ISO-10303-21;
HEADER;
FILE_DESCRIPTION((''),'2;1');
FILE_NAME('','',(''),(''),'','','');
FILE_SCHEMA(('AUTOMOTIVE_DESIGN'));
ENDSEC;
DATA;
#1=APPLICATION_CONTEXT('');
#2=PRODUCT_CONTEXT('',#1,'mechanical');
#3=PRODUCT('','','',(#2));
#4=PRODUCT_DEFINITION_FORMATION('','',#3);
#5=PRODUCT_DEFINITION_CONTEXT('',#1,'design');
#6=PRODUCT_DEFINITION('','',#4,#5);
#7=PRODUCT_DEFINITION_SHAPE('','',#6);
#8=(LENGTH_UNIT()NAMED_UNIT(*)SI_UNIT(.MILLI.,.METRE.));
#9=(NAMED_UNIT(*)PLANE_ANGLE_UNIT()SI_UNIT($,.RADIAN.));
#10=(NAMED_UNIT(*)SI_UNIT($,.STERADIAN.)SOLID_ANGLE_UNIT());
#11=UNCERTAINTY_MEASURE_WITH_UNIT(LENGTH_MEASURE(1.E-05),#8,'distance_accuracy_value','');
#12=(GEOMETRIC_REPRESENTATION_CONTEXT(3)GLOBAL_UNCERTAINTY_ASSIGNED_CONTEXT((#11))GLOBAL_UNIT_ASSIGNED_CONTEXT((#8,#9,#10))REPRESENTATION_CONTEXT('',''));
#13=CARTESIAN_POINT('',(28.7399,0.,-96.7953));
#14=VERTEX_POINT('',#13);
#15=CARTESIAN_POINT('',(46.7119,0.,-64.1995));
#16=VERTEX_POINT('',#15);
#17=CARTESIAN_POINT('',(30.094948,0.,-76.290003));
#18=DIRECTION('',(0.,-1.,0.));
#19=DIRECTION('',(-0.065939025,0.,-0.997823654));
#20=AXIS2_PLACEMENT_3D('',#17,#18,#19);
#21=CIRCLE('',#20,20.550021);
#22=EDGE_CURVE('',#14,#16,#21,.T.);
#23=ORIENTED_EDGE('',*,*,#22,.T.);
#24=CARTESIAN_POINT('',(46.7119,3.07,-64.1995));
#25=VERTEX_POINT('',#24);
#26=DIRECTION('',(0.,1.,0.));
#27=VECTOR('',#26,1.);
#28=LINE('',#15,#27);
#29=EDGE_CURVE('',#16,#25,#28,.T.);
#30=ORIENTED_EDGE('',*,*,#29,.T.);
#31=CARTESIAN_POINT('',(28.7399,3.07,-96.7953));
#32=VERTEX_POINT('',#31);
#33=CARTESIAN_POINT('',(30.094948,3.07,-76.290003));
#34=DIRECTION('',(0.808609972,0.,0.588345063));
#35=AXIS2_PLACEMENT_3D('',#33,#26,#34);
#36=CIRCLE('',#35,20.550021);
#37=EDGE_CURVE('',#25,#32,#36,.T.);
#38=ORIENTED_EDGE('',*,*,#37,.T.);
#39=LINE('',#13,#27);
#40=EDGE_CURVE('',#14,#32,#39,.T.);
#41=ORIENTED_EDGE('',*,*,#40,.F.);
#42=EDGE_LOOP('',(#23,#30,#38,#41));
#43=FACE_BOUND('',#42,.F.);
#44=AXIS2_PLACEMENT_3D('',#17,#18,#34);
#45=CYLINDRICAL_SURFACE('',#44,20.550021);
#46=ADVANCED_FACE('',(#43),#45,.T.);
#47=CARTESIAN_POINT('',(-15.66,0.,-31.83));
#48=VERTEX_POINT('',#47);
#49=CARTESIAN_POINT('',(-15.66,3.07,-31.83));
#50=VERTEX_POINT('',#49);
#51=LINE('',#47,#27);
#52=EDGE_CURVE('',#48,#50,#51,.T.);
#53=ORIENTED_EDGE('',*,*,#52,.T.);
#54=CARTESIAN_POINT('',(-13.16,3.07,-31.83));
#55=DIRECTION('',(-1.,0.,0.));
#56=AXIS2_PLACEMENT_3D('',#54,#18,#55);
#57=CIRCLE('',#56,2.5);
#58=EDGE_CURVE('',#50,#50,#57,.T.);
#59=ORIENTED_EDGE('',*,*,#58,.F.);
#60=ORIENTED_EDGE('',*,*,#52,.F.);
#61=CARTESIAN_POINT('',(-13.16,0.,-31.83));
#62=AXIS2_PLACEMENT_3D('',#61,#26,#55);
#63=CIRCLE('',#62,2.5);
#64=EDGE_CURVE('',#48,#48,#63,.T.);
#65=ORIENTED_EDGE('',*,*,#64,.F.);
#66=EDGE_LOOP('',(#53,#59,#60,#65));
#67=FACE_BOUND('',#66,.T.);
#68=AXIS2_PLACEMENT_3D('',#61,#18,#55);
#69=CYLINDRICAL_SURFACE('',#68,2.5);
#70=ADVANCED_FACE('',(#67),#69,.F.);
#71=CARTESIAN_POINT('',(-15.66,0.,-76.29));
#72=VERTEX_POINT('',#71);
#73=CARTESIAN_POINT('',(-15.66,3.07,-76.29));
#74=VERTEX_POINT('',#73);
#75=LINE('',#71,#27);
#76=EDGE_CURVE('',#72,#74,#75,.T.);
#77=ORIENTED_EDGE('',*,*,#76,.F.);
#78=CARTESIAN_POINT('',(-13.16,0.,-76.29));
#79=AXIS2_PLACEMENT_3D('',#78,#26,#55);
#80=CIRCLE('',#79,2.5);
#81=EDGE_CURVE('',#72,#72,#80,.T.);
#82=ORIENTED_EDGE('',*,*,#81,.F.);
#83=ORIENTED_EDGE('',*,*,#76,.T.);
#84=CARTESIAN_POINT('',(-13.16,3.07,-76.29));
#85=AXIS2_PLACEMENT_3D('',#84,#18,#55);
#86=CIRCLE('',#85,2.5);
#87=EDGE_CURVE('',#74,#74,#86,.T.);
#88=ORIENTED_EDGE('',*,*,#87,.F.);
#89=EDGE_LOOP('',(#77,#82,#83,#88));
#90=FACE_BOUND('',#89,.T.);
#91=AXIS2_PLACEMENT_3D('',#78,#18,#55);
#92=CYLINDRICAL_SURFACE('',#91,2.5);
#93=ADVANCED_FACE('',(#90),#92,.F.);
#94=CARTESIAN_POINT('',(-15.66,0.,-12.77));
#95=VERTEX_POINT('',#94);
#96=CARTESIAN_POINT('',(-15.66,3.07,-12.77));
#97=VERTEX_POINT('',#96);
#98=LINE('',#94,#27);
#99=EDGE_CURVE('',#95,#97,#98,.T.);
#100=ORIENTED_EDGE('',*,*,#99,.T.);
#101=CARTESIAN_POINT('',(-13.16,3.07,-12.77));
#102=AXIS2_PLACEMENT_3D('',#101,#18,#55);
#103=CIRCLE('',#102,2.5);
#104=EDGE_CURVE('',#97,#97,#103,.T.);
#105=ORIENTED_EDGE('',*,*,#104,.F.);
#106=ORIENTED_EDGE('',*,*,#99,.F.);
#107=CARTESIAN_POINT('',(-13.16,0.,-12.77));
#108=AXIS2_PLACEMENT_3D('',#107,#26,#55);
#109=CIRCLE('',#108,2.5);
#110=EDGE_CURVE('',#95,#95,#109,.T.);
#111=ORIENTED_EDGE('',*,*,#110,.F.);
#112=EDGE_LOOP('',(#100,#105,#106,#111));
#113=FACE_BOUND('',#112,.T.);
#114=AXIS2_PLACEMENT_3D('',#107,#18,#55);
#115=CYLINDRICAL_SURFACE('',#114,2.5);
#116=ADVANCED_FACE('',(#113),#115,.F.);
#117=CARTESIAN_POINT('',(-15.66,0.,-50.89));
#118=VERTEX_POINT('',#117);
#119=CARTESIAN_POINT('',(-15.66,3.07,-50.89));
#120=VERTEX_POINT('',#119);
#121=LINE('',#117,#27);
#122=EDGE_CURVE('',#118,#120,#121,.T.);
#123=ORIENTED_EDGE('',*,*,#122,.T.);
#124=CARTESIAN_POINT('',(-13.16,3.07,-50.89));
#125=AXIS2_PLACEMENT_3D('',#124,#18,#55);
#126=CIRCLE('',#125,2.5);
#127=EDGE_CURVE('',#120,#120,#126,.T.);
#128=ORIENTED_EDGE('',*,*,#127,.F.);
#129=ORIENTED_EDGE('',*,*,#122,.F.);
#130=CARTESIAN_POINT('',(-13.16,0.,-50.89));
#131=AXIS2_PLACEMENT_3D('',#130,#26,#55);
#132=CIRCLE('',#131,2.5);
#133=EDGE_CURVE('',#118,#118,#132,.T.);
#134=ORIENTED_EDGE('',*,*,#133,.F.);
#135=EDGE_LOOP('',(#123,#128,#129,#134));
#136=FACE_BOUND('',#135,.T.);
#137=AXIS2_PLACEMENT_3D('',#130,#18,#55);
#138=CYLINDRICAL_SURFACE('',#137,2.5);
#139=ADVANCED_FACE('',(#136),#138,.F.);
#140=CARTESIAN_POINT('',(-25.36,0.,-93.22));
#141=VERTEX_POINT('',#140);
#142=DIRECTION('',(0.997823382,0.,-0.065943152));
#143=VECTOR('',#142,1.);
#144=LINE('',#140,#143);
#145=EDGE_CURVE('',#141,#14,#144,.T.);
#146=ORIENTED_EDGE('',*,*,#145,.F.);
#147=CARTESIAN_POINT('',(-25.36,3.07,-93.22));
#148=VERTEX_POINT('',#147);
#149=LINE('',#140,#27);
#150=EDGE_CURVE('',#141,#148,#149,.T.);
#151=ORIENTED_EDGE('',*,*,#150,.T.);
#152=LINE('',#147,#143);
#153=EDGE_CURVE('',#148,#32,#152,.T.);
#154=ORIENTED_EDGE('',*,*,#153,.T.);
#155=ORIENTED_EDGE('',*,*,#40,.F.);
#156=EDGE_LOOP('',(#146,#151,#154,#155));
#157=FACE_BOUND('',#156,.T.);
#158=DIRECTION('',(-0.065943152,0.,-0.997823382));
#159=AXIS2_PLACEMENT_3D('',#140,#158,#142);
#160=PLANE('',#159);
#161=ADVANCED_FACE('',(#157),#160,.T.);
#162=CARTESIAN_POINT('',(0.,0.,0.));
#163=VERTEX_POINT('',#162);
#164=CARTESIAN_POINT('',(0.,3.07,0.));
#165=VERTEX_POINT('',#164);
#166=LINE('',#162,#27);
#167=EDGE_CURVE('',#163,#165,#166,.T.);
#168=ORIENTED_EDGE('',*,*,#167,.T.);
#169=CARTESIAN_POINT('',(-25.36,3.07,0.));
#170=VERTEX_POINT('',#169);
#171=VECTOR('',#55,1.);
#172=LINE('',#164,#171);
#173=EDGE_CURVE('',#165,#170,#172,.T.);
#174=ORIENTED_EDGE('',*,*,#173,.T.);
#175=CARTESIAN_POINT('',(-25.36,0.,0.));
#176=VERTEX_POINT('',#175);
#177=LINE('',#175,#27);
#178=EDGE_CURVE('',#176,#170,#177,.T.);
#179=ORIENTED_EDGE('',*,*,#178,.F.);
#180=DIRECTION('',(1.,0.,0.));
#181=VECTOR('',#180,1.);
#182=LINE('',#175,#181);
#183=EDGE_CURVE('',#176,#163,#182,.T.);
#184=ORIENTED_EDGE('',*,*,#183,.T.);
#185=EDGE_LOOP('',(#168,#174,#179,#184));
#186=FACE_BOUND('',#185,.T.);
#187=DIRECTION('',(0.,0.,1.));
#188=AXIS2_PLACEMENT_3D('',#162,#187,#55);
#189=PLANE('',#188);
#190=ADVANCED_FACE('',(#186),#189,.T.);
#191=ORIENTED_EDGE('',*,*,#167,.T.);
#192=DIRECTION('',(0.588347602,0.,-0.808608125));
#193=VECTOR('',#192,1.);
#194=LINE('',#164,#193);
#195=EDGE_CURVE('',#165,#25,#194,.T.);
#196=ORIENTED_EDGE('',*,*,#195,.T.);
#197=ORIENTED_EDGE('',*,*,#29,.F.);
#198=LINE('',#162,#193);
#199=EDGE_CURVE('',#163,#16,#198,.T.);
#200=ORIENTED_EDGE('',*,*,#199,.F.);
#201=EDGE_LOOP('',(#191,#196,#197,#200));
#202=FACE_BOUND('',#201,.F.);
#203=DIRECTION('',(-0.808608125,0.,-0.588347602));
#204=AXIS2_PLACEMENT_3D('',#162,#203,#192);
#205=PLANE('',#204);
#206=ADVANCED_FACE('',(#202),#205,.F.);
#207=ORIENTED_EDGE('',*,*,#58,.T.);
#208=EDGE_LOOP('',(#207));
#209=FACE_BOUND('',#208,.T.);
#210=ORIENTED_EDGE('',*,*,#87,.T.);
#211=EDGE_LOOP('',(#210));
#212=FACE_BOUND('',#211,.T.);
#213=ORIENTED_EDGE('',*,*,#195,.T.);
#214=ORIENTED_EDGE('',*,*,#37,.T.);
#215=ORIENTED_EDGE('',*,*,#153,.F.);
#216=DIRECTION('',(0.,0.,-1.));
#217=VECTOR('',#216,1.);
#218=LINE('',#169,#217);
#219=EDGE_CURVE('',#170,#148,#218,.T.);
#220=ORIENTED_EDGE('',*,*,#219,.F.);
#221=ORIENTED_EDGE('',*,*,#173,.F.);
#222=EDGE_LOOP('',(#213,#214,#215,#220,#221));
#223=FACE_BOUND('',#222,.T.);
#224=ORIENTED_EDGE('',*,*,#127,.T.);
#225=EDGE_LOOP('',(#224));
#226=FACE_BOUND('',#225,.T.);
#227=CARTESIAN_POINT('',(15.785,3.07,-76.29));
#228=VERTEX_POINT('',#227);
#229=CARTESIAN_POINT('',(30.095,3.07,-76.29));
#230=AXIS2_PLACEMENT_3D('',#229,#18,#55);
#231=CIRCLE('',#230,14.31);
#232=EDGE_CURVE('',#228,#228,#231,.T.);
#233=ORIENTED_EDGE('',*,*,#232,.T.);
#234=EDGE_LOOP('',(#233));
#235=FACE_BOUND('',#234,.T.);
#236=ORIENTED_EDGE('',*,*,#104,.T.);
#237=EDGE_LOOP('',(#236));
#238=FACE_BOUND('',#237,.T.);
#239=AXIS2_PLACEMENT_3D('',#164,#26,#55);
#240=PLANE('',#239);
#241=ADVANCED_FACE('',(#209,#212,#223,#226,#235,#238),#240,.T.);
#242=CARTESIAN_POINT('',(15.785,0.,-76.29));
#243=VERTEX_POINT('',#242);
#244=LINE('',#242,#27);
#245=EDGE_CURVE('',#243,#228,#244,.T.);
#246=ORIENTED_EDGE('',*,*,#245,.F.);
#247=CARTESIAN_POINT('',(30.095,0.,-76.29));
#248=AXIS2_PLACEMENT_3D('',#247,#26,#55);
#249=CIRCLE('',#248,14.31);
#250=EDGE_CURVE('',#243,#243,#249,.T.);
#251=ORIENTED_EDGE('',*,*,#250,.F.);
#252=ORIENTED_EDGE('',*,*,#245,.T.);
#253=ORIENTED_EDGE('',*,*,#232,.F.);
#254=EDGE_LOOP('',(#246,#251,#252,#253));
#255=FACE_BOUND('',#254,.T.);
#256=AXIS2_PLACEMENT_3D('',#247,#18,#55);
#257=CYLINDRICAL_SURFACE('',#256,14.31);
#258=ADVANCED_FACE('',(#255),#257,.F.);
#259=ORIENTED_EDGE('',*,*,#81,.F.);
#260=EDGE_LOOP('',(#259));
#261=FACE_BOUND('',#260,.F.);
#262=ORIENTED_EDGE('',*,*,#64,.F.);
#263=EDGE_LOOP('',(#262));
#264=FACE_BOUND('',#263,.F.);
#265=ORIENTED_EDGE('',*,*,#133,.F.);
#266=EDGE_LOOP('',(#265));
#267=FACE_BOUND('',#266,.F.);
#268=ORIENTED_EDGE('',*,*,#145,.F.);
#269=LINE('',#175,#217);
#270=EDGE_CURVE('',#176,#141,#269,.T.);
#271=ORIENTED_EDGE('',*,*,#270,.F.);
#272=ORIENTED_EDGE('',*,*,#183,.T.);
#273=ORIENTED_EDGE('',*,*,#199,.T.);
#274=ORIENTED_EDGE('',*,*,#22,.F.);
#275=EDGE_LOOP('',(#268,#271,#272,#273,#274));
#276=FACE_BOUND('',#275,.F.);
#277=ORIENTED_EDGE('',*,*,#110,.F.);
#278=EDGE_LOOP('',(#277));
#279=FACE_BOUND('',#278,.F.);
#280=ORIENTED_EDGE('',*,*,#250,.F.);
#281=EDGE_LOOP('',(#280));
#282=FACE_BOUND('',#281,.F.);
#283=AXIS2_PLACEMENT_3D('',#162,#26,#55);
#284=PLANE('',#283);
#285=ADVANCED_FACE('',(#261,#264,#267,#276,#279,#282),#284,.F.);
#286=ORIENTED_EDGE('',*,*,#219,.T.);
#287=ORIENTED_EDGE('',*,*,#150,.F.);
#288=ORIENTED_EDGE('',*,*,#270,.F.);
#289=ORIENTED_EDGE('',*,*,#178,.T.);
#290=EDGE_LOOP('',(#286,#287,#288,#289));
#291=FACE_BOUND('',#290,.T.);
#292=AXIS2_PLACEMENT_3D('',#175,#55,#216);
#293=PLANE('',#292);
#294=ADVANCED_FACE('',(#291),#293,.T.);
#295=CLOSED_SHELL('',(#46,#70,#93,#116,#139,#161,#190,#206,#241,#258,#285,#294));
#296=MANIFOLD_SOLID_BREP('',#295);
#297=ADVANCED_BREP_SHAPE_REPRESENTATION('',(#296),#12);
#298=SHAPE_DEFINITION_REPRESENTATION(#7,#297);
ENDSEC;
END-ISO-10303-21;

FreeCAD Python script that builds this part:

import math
import FreeCAD as App
import Part
import Sketcher

V = App.Vector
Q = App.Units.Quantity

doc = App.newDocument("Part")
body = doc.addObject("PartDesign::Body", "Body")

# Sketch on XZ plane
sketch1 = body.newObject("Sketcher::SketchObject", "Sketch")
sketch1.AttachmentSupport = (doc.getObject("XZ_Plane"), [""])
sketch1.MapMode = "FlatFace"
sketch1.addGeometry(Part.LineSegment(V(0, 0, 0), V(46.7, -64.2, 0)), False)
sketch1.addGeometry(Part.ArcOfCircle(Part.Circle(V(30.1, -76.3, 0), V(0, 0, 1), 20.5), math.radians(-94), math.radians(36)), False)
sketch1.addGeometry(Part.LineSegment(V(28.7, -96.8, 0), V(-25.4, -93.2, 0)), False)
sketch1.addGeometry(Part.LineSegment(V(-25.4, -93.2, 0), V(-25.4, 0, 0)), False)
sketch1.addGeometry(Part.LineSegment(V(-25.4, 0, 0), V(0, 0, 0)), False)
sketch1.addGeometry(Part.Circle(V(-13.2, -12.8, 0), V(0, 0, 1), 2.5), False)
sketch1.addGeometry(Part.Circle(V(-13.2, -31.8, 0), V(0, 0, 1), 2.5), False)
sketch1.addGeometry(Part.Circle(V(-13.2, -50.9, 0), V(0, 0, 1), 2.5), False)
sketch1.addGeometry(Part.Circle(V(-13.2, -76.3, 0), V(0, 0, 1), 2.5), False)
sketch1.addGeometry(Part.Circle(V(30.1, -76.3, 0), V(0, 0, 1), 14.3), False)
sketch1.addConstraint(Sketcher.Constraint("Tangent", 0, 2, 1, 2))
sketch1.addConstraint(Sketcher.Constraint("Tangent", 1, 1, 2, 1))
sketch1.addConstraint(Sketcher.Constraint("Coincident", 2, 2, 3, 1))
sketch1.addConstraint(Sketcher.Constraint("Coincident", 3, 2, 4, 1))
sketch1.addConstraint(Sketcher.Constraint("Coincident", 4, 2, 0, 1))
sketch1.addConstraint(Sketcher.Constraint("Vertical", 3))
sketch1.addConstraint(Sketcher.Constraint("Horizontal", 4))
sketch1.addConstraint(Sketcher.Constraint("Coincident", 4, 2, -1, 1))
sketch1.addConstraint(Sketcher.Constraint("Coincident", 9, 3, 1, 3))
sketch1.addConstraint(Sketcher.Constraint("Equal", 5, 6))
sketch1.addConstraint(Sketcher.Constraint("Equal", 6, 7))
sketch1.addConstraint(Sketcher.Constraint("Equal", 7, 8))
sketch1.addConstraint(Sketcher.Constraint("Horizontal", 1, 3, 8, 3))
sketch1.addConstraint(Sketcher.Constraint("Vertical", 5, 3, 6, 3))
sketch1.addConstraint(Sketcher.Constraint("Vertical", 6, 3, 7, 3))
sketch1.addConstraint(Sketcher.Constraint("Vertical", 7, 3, 8, 3))
sketch1.addConstraint(Sketcher.Constraint("Diameter", 5, 5.0))
sketch1.addConstraint(Sketcher.Constraint("Diameter", 9, 28.62))
sketch1.addConstraint(Sketcher.Constraint("DistanceX", 4, 1, 4, 2, 25.36))
sketch1.addConstraint(Sketcher.Constraint("DistanceY", 3, 1, 3, 2, 93.22))
sketch1.addConstraint(Sketcher.Constraint("DistanceX", 2, 2, 8, 3, 12.2))
sketch1.addConstraint(Sketcher.Constraint("Radius", 1, 20.55))
sketch1.addConstraint(Sketcher.Constraint("Angle", 0, Q("-53.9602 deg")))
sketch1.addConstraint(Sketcher.Constraint("Angle", 2, Q("176.219 deg")))
sketch1.addConstraint(Sketcher.Constraint("DistanceY", 1, 3, 7, 3, 25.4))
sketch1.addConstraint(Sketcher.Constraint("DistanceY", 5, 3, -1, 1, 12.77))
sketch1.addConstraint(Sketcher.Constraint("DistanceY", 6, 3, -1, 1, 31.83))
pad1 = body.newObject("PartDesign::Pad", "Pad")
pad1.Profile = sketch1
pad1.Length = 3.07
pad1.Reversed = True

doc.recompute()
